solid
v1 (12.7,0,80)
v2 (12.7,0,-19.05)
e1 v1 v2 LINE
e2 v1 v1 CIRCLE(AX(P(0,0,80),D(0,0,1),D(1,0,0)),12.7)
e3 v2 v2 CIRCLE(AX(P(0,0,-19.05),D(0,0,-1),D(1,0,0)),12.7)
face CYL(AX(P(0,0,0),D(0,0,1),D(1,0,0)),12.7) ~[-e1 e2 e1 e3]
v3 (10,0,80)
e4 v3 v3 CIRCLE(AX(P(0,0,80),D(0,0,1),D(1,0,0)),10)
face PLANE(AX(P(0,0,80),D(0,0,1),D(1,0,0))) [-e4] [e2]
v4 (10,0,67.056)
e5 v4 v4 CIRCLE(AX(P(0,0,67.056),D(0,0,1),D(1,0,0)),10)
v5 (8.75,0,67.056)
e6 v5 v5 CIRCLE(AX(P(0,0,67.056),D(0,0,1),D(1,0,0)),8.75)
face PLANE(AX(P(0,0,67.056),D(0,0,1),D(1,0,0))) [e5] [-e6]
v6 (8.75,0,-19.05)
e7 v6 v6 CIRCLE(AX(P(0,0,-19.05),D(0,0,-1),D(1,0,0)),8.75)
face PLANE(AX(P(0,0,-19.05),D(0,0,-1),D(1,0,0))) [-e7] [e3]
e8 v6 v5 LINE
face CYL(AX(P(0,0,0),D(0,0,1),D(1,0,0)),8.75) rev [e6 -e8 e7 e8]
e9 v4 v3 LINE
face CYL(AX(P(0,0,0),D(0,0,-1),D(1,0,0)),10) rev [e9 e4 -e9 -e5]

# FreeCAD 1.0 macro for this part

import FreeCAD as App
import Part
import Sketcher

doc = App.newDocument("Part")
body = doc.addObject("PartDesign::Body", "Body")

sketch1 = body.newObject("Sketcher::SketchObject", "Sketch")
sketch1.AttachmentSupport = (doc.getObject("XY_Plane"), [""])
sketch1.MapMode = "FlatFace"
sketch1.addGeometry(Part.Circle(App.Vector(0, 0, 0), App.Vector(0, 0, 1), 13), False)
sketch1.addGeometry(Part.Circle(App.Vector(0, 0, 0), App.Vector(0, 0, 1), 10), False)
sketch1.addConstraint(Sketcher.Constraint("Coincident", 0, 3, -1, 1))
sketch1.addConstraint(Sketcher.Constraint("Coincident", 1, 3, -1, 1))
sketch1.addConstraint(Sketcher.Constraint("Diameter", 1, 20.0))
sketch1.addConstraint(Sketcher.Constraint("Diameter", 0, 25.4))
pad1 = body.newObject("PartDesign::Pad", "Pad")
pad1.Profile = sketch1
pad1.Length = 80

sketch2 = body.newObject("Sketcher::SketchObject", "Sketch001")
sketch2.AttachmentSupport = (doc.getObject("XY_Plane"), [""])
sketch2.MapMode = "FlatFace"
sketch2.addGeometry(Part.Circle(App.Vector(0, 0, 0), App.Vector(0, 0, 1), 10), False)
sketch2.addGeometry(Part.Circle(App.Vector(0, 0, 0), App.Vector(0, 0, 1), 9), False)
sketch2.addConstraint(Sketcher.Constraint("Coincident", 0, 3, -1, 1))
sketch2.addConstraint(Sketcher.Constraint("Coincident", 1, 3, -1, 1))
sketch2.addConstraint(Sketcher.Constraint("Diameter", 0, 20.0))
sketch2.addConstraint(Sketcher.Constraint("Diameter", 1, 17.5))
pad2 = body.newObject("PartDesign::Pad", "Pad001")
pad2.Profile = sketch2
pad2.Length = 67.056

sketch3 = body.newObject("Sketcher::SketchObject", "Sketch002")
sketch3.AttachmentSupport = (doc.getObject("XY_Plane"), [""])
sketch3.MapMode = "FlatFace"
sketch3.addGeometry(Part.Circle(App.Vector(0, 0, 0), App.Vector(0, 0, 1), 13), False)
sketch3.addGeometry(Part.Circle(App.Vector(0, 0, 0), App.Vector(0, 0, 1), 9), False)
sketch3.addConstraint(Sketcher.Constraint("Coincident", 0, 3, -1, 1))
sketch3.addConstraint(Sketcher.Constraint("Coincident", 1, 3, -1, 1))
sketch3.addConstraint(Sketcher.Constraint("Diameter", 0, 25.4))
sketch3.addConstraint(Sketcher.Constraint("Diameter", 1, 17.5))
pad3 = body.newObject("PartDesign::Pad", "Pad002")
pad3.Profile = sketch3
pad3.Length = 19.05
pad3.Reversed = True

doc.recompute()
